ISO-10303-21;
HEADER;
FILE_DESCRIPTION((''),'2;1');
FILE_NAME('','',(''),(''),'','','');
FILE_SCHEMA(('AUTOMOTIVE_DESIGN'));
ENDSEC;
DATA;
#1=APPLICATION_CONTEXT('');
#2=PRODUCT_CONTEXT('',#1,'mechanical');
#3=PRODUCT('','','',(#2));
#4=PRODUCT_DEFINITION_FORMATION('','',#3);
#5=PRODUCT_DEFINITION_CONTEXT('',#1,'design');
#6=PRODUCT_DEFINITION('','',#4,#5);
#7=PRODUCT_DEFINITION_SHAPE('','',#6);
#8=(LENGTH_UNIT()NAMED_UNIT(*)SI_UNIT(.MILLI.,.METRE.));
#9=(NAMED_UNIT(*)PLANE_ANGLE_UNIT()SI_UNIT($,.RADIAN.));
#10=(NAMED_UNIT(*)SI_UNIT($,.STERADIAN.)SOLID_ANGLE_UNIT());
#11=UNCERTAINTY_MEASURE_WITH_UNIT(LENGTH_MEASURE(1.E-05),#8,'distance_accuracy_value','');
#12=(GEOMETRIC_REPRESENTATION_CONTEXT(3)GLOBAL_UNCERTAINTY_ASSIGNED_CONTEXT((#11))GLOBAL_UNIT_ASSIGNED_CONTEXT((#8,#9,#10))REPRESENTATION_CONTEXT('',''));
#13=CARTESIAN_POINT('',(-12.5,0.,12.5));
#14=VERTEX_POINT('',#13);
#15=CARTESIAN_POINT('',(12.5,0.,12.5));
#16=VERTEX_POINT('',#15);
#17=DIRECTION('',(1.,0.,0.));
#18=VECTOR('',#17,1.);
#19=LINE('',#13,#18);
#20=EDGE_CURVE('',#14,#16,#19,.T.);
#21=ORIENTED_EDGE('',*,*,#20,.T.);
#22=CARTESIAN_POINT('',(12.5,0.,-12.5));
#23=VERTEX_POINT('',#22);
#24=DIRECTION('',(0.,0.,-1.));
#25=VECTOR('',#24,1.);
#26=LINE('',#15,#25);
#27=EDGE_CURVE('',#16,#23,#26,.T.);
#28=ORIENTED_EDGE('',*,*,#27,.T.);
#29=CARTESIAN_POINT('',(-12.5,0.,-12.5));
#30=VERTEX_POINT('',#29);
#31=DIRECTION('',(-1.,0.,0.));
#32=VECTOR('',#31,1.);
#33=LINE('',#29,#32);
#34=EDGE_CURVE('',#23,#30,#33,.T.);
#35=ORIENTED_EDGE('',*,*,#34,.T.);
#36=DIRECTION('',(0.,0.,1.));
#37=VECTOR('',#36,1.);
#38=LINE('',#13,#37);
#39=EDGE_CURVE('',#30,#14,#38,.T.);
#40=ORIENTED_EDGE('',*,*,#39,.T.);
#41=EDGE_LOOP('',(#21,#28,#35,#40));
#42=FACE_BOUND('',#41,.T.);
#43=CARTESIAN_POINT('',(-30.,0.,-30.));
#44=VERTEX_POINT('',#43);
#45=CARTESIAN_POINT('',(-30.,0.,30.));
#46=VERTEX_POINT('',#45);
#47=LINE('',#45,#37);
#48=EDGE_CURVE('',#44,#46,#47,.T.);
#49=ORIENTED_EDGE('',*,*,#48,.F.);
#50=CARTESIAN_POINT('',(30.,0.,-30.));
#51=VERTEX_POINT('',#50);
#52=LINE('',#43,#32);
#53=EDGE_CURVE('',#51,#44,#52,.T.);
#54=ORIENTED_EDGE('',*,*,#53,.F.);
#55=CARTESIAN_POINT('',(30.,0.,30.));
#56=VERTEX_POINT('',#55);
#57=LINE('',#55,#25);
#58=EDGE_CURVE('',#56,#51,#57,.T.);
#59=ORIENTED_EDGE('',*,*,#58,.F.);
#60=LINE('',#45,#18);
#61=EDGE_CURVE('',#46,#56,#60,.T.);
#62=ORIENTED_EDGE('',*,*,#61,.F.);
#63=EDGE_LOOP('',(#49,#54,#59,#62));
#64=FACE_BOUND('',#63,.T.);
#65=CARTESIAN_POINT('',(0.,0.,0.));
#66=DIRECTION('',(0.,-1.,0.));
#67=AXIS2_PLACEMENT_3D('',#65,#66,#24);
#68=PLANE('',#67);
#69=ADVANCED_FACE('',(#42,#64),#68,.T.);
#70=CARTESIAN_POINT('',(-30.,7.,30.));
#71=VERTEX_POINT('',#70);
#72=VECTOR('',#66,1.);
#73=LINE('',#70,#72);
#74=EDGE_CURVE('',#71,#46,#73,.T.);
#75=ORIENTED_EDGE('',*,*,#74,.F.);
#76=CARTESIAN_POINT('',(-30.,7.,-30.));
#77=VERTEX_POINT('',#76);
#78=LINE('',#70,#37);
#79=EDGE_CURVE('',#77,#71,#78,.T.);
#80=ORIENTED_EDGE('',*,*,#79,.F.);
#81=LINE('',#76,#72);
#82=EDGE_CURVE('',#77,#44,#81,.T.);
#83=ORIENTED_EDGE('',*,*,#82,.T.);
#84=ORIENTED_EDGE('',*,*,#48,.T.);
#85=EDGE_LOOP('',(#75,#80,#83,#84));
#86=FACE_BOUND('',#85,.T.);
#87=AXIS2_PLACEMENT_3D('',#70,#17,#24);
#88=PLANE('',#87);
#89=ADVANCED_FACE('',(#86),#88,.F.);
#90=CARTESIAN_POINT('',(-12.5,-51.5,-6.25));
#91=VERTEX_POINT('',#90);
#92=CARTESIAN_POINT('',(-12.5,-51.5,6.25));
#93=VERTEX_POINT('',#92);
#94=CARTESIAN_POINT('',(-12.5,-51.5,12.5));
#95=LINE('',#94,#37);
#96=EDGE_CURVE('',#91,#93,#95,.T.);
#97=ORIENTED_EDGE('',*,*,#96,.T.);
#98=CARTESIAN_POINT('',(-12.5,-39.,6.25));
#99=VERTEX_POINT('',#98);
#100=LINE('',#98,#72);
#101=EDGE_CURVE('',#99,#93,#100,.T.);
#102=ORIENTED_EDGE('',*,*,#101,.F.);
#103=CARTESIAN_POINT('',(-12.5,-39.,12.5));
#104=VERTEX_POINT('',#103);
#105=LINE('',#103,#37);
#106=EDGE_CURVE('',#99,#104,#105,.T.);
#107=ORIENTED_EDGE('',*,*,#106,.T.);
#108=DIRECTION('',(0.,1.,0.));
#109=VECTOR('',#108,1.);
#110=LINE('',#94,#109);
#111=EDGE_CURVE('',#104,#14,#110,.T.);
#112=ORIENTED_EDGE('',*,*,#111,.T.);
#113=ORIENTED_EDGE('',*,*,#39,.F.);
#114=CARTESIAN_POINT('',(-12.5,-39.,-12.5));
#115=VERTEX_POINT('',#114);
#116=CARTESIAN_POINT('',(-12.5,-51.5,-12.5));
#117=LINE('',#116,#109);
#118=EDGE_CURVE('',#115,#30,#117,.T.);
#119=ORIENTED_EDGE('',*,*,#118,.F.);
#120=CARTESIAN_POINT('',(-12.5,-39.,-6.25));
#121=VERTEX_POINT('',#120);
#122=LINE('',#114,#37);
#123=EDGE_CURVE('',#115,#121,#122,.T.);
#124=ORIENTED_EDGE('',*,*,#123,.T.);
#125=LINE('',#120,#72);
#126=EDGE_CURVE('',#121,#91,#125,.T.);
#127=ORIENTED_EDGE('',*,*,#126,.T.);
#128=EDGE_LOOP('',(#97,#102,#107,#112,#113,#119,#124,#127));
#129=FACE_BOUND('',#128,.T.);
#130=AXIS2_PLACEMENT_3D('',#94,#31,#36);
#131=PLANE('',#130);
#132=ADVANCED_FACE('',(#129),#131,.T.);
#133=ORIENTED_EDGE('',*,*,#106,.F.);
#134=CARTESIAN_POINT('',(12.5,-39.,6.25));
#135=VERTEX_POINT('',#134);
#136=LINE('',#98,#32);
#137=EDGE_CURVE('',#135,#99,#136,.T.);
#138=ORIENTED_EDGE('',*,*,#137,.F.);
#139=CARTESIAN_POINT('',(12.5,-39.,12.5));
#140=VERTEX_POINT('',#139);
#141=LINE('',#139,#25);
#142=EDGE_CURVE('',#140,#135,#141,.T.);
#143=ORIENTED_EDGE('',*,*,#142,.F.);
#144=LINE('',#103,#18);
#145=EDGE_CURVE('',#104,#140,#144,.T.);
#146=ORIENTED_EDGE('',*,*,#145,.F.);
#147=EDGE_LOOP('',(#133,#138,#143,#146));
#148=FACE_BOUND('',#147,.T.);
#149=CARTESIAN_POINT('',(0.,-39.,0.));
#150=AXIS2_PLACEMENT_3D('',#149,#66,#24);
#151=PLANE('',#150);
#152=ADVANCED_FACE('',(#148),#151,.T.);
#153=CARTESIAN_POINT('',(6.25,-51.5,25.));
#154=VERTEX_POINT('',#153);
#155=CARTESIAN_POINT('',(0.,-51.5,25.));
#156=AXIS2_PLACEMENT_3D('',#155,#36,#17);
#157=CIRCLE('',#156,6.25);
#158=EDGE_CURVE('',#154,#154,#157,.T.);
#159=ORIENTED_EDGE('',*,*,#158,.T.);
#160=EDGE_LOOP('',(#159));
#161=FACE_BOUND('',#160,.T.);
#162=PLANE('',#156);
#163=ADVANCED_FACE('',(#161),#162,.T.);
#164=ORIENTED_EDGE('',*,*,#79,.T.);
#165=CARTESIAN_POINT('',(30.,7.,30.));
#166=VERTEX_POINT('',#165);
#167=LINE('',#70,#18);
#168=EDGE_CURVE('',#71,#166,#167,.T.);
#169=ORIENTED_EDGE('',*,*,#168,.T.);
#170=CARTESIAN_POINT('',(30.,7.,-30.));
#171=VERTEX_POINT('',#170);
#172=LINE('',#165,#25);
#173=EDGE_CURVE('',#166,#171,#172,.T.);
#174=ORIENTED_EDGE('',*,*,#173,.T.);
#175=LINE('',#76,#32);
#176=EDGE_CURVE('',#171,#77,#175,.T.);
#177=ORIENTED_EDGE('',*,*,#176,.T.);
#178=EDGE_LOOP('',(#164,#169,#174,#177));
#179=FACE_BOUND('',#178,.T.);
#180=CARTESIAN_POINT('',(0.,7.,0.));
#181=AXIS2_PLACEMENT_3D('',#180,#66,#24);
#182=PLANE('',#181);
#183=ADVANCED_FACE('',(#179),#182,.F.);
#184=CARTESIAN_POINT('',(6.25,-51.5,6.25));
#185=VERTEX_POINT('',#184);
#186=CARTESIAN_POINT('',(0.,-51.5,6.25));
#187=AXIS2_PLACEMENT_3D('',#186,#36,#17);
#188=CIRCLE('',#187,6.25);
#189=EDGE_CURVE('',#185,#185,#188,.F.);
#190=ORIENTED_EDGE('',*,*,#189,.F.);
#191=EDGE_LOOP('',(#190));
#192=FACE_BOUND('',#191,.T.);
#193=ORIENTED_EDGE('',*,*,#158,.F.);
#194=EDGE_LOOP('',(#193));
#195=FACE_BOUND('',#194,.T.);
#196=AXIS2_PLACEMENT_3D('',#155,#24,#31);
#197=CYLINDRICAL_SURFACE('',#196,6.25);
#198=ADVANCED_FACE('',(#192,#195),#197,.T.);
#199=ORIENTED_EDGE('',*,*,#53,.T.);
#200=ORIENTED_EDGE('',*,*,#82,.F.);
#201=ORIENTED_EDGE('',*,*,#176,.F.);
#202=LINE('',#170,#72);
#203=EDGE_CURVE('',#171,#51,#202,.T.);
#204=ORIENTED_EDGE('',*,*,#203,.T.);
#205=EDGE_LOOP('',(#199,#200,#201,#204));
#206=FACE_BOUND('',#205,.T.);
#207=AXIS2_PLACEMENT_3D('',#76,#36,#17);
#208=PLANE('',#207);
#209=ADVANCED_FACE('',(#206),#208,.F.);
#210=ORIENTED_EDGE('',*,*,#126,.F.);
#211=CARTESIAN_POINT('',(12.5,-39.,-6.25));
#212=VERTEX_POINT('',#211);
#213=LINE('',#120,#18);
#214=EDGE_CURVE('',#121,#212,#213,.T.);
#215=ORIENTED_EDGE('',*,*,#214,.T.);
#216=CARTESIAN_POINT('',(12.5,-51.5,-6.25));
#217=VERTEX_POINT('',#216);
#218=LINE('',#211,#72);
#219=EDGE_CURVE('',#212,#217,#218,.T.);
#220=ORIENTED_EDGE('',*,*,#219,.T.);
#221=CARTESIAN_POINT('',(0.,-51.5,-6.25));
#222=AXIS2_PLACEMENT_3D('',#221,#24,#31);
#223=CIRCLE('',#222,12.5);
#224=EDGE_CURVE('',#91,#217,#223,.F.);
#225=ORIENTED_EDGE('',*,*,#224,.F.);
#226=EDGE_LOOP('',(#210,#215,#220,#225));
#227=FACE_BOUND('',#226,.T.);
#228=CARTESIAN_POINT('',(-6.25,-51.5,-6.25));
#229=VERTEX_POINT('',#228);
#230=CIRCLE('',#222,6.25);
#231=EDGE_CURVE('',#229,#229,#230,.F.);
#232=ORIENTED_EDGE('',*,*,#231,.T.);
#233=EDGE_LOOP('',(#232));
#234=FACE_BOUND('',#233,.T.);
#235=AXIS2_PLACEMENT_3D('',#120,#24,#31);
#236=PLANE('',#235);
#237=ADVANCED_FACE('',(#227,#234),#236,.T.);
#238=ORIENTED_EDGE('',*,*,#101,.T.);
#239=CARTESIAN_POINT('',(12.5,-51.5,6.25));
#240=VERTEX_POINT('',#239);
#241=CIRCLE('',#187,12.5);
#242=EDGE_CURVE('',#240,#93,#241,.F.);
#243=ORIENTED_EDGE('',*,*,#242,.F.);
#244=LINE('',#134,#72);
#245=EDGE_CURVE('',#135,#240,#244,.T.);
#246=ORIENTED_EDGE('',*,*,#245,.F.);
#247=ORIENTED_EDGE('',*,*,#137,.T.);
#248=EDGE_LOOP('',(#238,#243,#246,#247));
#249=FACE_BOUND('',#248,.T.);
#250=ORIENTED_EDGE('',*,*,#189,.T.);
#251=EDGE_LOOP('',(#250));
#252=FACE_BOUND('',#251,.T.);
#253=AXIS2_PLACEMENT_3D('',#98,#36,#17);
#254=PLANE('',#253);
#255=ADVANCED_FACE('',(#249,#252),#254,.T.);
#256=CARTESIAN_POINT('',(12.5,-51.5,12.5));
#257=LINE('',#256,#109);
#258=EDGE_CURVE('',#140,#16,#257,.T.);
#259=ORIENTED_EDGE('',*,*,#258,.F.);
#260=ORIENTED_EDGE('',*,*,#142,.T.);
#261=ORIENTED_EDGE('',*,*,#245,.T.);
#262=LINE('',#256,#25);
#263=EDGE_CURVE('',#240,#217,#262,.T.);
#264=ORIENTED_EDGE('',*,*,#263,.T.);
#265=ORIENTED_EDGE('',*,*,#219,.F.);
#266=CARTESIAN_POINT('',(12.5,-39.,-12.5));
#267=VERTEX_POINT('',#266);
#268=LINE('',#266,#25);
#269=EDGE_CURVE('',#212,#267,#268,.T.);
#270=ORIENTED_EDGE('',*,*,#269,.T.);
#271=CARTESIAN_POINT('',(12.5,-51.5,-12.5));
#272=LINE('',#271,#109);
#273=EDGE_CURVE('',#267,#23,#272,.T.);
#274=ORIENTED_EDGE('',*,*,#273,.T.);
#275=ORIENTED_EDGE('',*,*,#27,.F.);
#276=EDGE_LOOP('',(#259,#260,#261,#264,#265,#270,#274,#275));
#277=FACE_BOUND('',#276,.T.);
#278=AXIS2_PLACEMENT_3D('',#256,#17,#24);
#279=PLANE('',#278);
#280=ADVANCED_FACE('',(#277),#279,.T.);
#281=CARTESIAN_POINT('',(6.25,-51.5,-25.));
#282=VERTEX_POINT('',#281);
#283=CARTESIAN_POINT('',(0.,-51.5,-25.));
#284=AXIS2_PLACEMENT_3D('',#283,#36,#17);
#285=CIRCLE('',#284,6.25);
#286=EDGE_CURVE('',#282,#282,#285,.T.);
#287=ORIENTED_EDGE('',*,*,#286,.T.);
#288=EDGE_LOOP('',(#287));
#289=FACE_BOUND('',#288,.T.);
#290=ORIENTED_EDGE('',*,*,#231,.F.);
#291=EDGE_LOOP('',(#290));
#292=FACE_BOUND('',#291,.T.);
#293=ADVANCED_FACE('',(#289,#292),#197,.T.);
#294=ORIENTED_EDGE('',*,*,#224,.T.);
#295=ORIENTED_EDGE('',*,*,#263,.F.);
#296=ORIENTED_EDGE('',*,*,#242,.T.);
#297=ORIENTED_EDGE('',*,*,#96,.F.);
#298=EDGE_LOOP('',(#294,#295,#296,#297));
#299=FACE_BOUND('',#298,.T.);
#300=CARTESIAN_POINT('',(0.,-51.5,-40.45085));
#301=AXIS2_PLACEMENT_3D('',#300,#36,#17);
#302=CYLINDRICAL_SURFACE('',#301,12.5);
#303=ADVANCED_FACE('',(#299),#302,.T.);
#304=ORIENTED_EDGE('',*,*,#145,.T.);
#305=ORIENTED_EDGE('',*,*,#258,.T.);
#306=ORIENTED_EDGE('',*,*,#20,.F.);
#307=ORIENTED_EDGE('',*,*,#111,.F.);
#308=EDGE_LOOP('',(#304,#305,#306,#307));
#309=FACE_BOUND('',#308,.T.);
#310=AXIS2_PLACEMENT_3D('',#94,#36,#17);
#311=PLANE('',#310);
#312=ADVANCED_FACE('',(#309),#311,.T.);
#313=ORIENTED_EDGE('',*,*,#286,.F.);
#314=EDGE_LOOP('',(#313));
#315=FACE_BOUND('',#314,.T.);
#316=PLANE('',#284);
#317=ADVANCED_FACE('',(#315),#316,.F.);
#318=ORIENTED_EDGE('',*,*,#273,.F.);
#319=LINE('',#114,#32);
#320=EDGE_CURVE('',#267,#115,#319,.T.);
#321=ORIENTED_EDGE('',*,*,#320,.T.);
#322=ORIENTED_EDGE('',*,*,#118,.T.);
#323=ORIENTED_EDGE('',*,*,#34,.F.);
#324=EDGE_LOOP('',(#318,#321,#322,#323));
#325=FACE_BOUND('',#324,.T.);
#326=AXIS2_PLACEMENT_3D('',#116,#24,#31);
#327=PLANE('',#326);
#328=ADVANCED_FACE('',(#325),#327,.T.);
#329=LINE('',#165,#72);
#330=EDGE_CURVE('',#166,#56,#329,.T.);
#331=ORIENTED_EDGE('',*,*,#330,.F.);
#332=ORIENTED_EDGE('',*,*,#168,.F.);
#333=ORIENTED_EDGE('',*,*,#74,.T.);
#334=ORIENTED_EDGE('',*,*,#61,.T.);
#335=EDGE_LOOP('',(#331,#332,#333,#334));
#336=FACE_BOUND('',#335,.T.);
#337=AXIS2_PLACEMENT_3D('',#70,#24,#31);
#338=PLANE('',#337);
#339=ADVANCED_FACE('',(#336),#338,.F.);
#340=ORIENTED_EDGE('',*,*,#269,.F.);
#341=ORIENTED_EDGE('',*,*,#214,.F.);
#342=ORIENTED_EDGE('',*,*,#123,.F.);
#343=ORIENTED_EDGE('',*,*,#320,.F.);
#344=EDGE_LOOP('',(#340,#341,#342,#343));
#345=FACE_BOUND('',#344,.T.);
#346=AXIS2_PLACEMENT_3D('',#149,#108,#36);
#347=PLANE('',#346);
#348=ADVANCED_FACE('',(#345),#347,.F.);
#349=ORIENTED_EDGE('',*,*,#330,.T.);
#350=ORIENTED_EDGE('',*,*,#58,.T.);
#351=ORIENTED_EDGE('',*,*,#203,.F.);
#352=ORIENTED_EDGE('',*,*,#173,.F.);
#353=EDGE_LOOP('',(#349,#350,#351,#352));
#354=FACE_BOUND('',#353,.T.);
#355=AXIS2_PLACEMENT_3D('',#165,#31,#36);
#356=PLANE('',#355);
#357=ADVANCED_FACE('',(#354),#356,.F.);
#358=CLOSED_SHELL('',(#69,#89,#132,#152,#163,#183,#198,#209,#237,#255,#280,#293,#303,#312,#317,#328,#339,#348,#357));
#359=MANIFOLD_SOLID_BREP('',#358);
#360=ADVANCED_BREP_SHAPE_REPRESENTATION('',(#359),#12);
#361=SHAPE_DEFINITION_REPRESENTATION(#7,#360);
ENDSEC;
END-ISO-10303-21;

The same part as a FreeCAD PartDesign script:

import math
import FreeCAD as App
import Part
import Sketcher
Q = App.Units.Quantity

doc = App.newDocument("Part")
params = doc.addObject("Spreadsheet::Sheet", "Params")
for row, (alias, value) in enumerate([
    ("sketch1_width", "60 mm"),
    ("pad1_length", "7 mm"),
    ("sketch2_width", "25 mm"),
    ("pad2_length", "51.5 mm"),
    ("sketch3_radius", "12.5 mm"),
    ("pad3_length", "25 mm"),
    ("sketch4_width", "25 mm"),
    ("sketch4_height", "6.25 mm"),
    ("pocket1_length", "25 mm"),
    ("sketch5_diameter", "12.5 mm"),
    ("pad4_length", "25 mm"),
    ("pad4_length2", "25 mm"),
], start=1):
    params.set(f"A{row}", alias)
    params.set(f"B{row}", "=" + value)
    params.setAlias(f"B{row}", alias)

body = doc.addObject("PartDesign::Body", "Body")

sketch1 = doc.addObject("Sketcher::SketchObject", "Sketch")
body.addObject(sketch1)
sketch1.AttachmentSupport = (doc.XZ_Plane, [""])
sketch1.MapMode = "FlatFace"
sketch1.addGeometry([
    Part.LineSegment(App.Vector(-30, -30, 0), App.Vector(-30, 30, 0)),
    Part.LineSegment(App.Vector(-30, 30, 0), App.Vector(30, 30, 0)),
    Part.LineSegment(App.Vector(30, 30, 0), App.Vector(30, -30, 0)),
    Part.LineSegment(App.Vector(30, -30, 0), App.Vector(-30, -30, 0)),
], False)
sketch1.addConstraint([
    Sketcher.Constraint("Coincident", 0, 2, 1, 1),
    Sketcher.Constraint("Coincident", 1, 2, 2, 1),
    Sketcher.Constraint("Coincident", 2, 2, 3, 1),
    Sketcher.Constraint("Coincident", 3, 2, 0, 1),
    Sketcher.Constraint("Vertical", 0),
    Sketcher.Constraint("Horizontal", 1),
    Sketcher.Constraint("Vertical", 2),
    Sketcher.Constraint("Horizontal", 3),
    Sketcher.Constraint("Symmetric", 0, 2, 2, 2, -1, 1),
    Sketcher.Constraint("Equal", 3, 0),
    Sketcher.Constraint("DistanceX", 1, 1, 1, 2, Q("60 mm")),
])
sketch1.setExpression("Constraints[10]", "Params.sketch1_width")
pad1 = doc.addObject("PartDesign::Pad", "Pad")
body.addObject(pad1)
pad1.Profile = sketch1
pad1.setExpression("Length", "Params.pad1_length")
pad1.Reversed = True

sketch2 = doc.addObject("Sketcher::SketchObject", "Sketch001")
body.addObject(sketch2)
sketch2.AttachmentSupport = (doc.XZ_Plane, [""])
sketch2.MapMode = "FlatFace"
sketch2.addGeometry([
    Part.LineSegment(App.Vector(-12.5, -12.5, 0), App.Vector(-12.5, 12.5, 0)),
    Part.LineSegment(App.Vector(-12.5, 12.5, 0), App.Vector(12.5, 12.5, 0)),
    Part.LineSegment(App.Vector(12.5, 12.5, 0), App.Vector(12.5, -12.5, 0)),
    Part.LineSegment(App.Vector(12.5, -12.5, 0), App.Vector(-12.5, -12.5, 0)),
], False)
sketch2.addConstraint([
    Sketcher.Constraint("Coincident", 0, 2, 1, 1),
    Sketcher.Constraint("Coincident", 1, 2, 2, 1),
    Sketcher.Constraint("Coincident", 2, 2, 3, 1),
    Sketcher.Constraint("Coincident", 3, 2, 0, 1),
    Sketcher.Constraint("Vertical", 0),
    Sketcher.Constraint("Horizontal", 1),
    Sketcher.Constraint("Vertical", 2),
    Sketcher.Constraint("Horizontal", 3),
    Sketcher.Constraint("Symmetric", 0, 2, 2, 2, -1, 1),
    Sketcher.Constraint("Equal", 3, 0),
    Sketcher.Constraint("DistanceX", 1, 1, 1, 2, Q("25 mm")),
])
sketch2.setExpression("Constraints[10]", "Params.sketch2_width")
pad2 = doc.addObject("PartDesign::Pad", "Pad001")
body.addObject(pad2)
pad2.Profile = sketch2
pad2.setExpression("Length", "Params.pad2_length")

sketch3 = doc.addObject("Sketcher::SketchObject", "Sketch002")
body.addObject(sketch3)
sketch3.AttachmentSupport = (doc.XY_Plane, [""])
sketch3.MapMode = "FlatFace"
sketch3.AttachmentOffset = App.Placement(App.Vector(0, 0, 12.5), App.Rotation())
sketch3.addGeometry([
    Part.LineSegment(App.Vector(12.5, -51.5, 0), App.Vector(-12.5, -51.5, 0)),
    Part.ArcOfCircle(Part.Circle(App.Vector(0, -51.5, 0), App.Vector(0, 0, 1), 12.5), math.radians(180), math.radians(360)),
], False)
sketch3.addConstraint([
    Sketcher.Constraint("Coincident", 0, 1, 1, 2),
    Sketcher.Constraint("Coincident", 1, 1, 0, 2),
    Sketcher.Constraint("Horizontal", 0),
    Sketcher.Constraint("PointOnObject", 1, 3, -2),
    Sketcher.Constraint("Horizontal", 1, 3, 0, 1),
    Sketcher.Constraint("Radius", 1, Q("12.5 mm")),
    Sketcher.Constraint("DistanceY", 1, 3, -1, 1, Q("51.5 mm")),
])
sketch3.setExpression("Constraints[5]", "Params.sketch3_radius")
pad3 = doc.addObject("PartDesign::Pad", "Pad002")
body.addObject(pad3)
pad3.Profile = sketch3
pad3.setExpression("Length", "Params.pad3_length")
pad3.Reversed = True

sketch4 = doc.addObject("Sketcher::SketchObject", "Sketch003")
body.addObject(sketch4)
sketch4.AttachmentSupport = (doc.XZ_Plane, [""])
sketch4.MapMode = "FlatFace"
sketch4.AttachmentOffset = App.Placement(App.Vector(0, 0, 64), App.Rotation())
sketch4.addGeometry([
    Part.LineSegment(App.Vector(-12.5, -12.5, 0), App.Vector(-12.5, -6.25, 0)),
    Part.LineSegment(App.Vector(-12.5, -6.25, 0), App.Vector(12.5, -6.25, 0)),
    Part.LineSegment(App.Vector(12.5, -6.25, 0), App.Vector(12.5, -12.5, 0)),
    Part.LineSegment(App.Vector(12.5, -12.5, 0), App.Vector(-12.5, -12.5, 0)),
    Part.LineSegment(App.Vector(-12.5, 6.25, 0), App.Vector(-12.5, 12.5, 0)),
    Part.LineSegment(App.Vector(-12.5, 12.5, 0), App.Vector(12.5, 12.5, 0)),
    Part.LineSegment(App.Vector(12.5, 12.5, 0), App.Vector(12.5, 6.25, 0)),
    Part.LineSegment(App.Vector(12.5, 6.25, 0), App.Vector(-12.5, 6.25, 0)),
], False)
sketch4.addConstraint([
    Sketcher.Constraint("Coincident", 0, 2, 1, 1),
    Sketcher.Constraint("Coincident", 1, 2, 2, 1),
    Sketcher.Constraint("Coincident", 2, 2, 3, 1),
    Sketcher.Constraint("Coincident", 3, 2, 0, 1),
    Sketcher.Constraint("Coincident", 4, 2, 5, 1),
    Sketcher.Constraint("Coincident", 5, 2, 6, 1),
    Sketcher.Constraint("Coincident", 6, 2, 7, 1),
    Sketcher.Constraint("Coincident", 7, 2, 4, 1),
    Sketcher.Constraint("Vertical", 0),
    Sketcher.Constraint("Horizontal", 1),
    Sketcher.Constraint("Vertical", 2),
    Sketcher.Constraint("Horizontal", 3),
    Sketcher.Constraint("Vertical", 4),
    Sketcher.Constraint("Horizontal", 5),
    Sketcher.Constraint("Vertical", 6),
    Sketcher.Constraint("Horizontal", 7),
    Sketcher.Constraint("Symmetric", 2, 2, 4, 2, -1, 1),
    Sketcher.Constraint("Symmetric", 0, 2, 6, 2, -1, 1),
    Sketcher.Constraint("Vertical", 3, 2, 4, 2),
    Sketcher.Constraint("DistanceX", 1, 1, 1, 2, Q("25 mm")),
    Sketcher.Constraint("DistanceY", 3, 2, 4, 2, Q("25 mm")),
    Sketcher.Constraint("DistanceY", 0, 1, 0, 2, Q("6.25 mm")),
])
sketch4.setExpression("Constraints[19]", "Params.sketch4_width")
sketch4.setExpression("Constraints[21]", "Params.sketch4_height")
pocket1 = doc.addObject("PartDesign::Pocket", "Pocket")
body.addObject(pocket1)
pocket1.Profile = sketch4
pocket1.setExpression("Length", "Params.pocket1_length")

sketch5 = doc.addObject("Sketcher::SketchObject", "Sketch004")
body.addObject(sketch5)
sketch5.AttachmentSupport = (doc.XY_Plane, [""])
sketch5.MapMode = "FlatFace"
sketch5.addGeometry(Part.Circle(App.Vector(0, -51.5, 0), App.Vector(0, 0, 1), 6.25), False)
sketch5.addConstraint([
    Sketcher.Constraint("PointOnObject", 0, 3, -2),
    Sketcher.Constraint("Diameter", 0, Q("12.5 mm")),
    Sketcher.Constraint("DistanceY", 0, 3, -1, 1, Q("51.5 mm")),
])
sketch5.setExpression("Constraints[1]", "Params.sketch5_diameter")
pad4 = doc.addObject("PartDesign::Pad", "Pad003")
body.addObject(pad4)
pad4.Profile = sketch5
pad4.Type = "TwoLengths"
pad4.setExpression("Length", "Params.pad4_length")
pad4.setExpression("Length2", "Params.pad4_length2")

doc.recompute()
